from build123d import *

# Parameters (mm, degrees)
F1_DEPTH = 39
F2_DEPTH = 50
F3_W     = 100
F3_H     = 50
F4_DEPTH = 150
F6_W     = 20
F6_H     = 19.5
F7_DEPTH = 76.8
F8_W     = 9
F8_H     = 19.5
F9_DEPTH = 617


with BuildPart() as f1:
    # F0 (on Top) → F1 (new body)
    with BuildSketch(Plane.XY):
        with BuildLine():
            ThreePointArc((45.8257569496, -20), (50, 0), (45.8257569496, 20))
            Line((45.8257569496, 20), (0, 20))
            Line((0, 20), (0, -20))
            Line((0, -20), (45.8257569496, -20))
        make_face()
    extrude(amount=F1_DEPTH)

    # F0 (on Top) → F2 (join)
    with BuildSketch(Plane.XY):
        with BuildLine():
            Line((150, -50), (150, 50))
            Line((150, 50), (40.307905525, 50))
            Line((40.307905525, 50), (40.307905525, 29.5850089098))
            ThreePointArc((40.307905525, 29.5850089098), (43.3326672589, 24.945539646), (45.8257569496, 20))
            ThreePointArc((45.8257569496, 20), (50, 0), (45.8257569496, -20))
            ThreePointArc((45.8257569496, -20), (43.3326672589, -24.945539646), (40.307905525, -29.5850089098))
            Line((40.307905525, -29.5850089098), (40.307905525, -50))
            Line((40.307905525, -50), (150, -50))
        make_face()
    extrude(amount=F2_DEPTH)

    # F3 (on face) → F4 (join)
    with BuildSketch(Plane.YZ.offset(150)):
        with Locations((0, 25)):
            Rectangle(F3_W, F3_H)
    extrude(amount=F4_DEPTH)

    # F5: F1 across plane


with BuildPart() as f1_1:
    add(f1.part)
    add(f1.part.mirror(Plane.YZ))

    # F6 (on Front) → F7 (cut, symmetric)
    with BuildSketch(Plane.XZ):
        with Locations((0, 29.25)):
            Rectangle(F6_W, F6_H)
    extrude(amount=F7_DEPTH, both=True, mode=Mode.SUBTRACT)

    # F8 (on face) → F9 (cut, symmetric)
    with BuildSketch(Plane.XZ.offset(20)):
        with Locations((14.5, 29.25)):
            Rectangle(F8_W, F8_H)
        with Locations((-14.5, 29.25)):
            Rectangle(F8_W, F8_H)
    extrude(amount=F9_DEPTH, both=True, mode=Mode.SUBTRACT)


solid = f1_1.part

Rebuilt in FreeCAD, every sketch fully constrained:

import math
import FreeCAD as App
import Part
import Sketcher

V = App.Vector
Q = App.Units.Quantity

doc = App.newDocument("Part")
body = doc.addObject("PartDesign::Body", "Body")

sketch1 = doc.addObject("Sketcher::SketchObject", "Sketch")
body.addObject(sketch1)
sketch1.AttachmentSupport = (doc.XY_Plane, [""])
sketch1.MapMode = "FlatFace"
sketch1.addGeometry([
    Part.ArcOfCircle(Part.Circle(V(0, 0, 0), V(0, 0, 1), 50), math.radians(-24), math.radians(24)),
    Part.LineSegment(V(46, 20, 0), V(0, 20, 0)),
    Part.LineSegment(V(0, 20, 0), V(0, -20, 0)),
    Part.LineSegment(V(0, -20, 0), V(46, -20, 0)),
], False)
sketch1.addConstraint([
    Sketcher.Constraint("Coincident", 0, 2, 1, 1),
    Sketcher.Constraint("Coincident", 1, 2, 2, 1),
    Sketcher.Constraint("Coincident", 2, 2, 3, 1),
    Sketcher.Constraint("Coincident", 3, 2, 0, 1),
    Sketcher.Constraint("Horizontal", 1),
    Sketcher.Constraint("Vertical", 2),
    Sketcher.Constraint("Horizontal", 3),
    Sketcher.Constraint("Coincident", 0, 3, -1, 1),
    Sketcher.Constraint("Symmetric", 1, 2, 2, 2, -1, 1),
    Sketcher.Constraint("Radius", 0, Q("50 mm")),
    Sketcher.Constraint("DistanceY", 2, 2, 2, 1, Q("40 mm")),
])
pad1 = doc.addObject("PartDesign::Pad", "Pad")
body.addObject(pad1)
pad1.Profile = sketch1
pad1.Length = 39

sketch2 = doc.addObject("Sketcher::SketchObject", "Sketch001")
body.addObject(sketch2)
sketch2.AttachmentSupport = (doc.XY_Plane, [""])
sketch2.MapMode = "FlatFace"
sketch2.addGeometry([
    Part.LineSegment(V(150, -50, 0), V(150, 50, 0)),
    Part.LineSegment(V(150, 50, 0), V(40, 50, 0)),
    Part.LineSegment(V(40, 50, 0), V(40, 30, 0)),
    Part.ArcOfCircle(Part.Circle(V(0, 0, 0), V(0, 0, 1), 50), math.radians(23.58), math.radians(36.28)),
    Part.ArcOfCircle(Part.Circle(V(0, 0, 0), V(0, 0, 1), 50), math.radians(-24), math.radians(24)),
    Part.ArcOfCircle(Part.Circle(V(0, 0, 0), V(0, 0, 1), 50), math.radians(-36.28), math.radians(-23.58)),
    Part.LineSegment(V(40, -30, 0), V(40, -50, 0)),
    Part.LineSegment(V(40, -50, 0), V(150, -50, 0)),
], False)
sketch2.addConstraint([
    Sketcher.Constraint("Coincident", 0, 2, 1, 1),
    Sketcher.Constraint("Coincident", 1, 2, 2, 1),
    Sketcher.Constraint("Coincident", 2, 2, 3, 2),
    Sketcher.Constraint("Tangent", 3, 1, 4, 2),
    Sketcher.Constraint("Tangent", 4, 1, 5, 2),
    Sketcher.Constraint("Coincident", 5, 1, 6, 1),
    Sketcher.Constraint("Coincident", 6, 2, 7, 1),
    Sketcher.Constraint("Coincident", 7, 2, 0, 1),
    Sketcher.Constraint("Vertical", 0),
    Sketcher.Constraint("Horizontal", 1),
    Sketcher.Constraint("Vertical", 2),
    Sketcher.Constraint("Vertical", 6),
    Sketcher.Constraint("Horizontal", 7),
    Sketcher.Constraint("Coincident", 3, 3, -1, 1),
    Sketcher.Constraint("Coincident", 5, 3, -1, 1),
    Sketcher.Constraint("Symmetric", 1, 2, 6, 2, -1),
    Sketcher.Constraint("Vertical", 3, 1, 4, 1),
    Sketcher.Constraint("Radius", 3, Q("50 mm")),
    Sketcher.Constraint("DistanceY", 0, 1, 0, 2, Q("100 mm")),
    Sketcher.Constraint("DistanceX", -1, 1, 0, 2, Q("150 mm")),
    Sketcher.Constraint("DistanceY", -1, 1, 3, 1, Q("20 mm")),
    Sketcher.Constraint("DistanceY", 2, 2, 2, 1, Q("20.414991 mm")),
])
pad2 = doc.addObject("PartDesign::Pad", "Pad001")
body.addObject(pad2)
pad2.Profile = sketch2
pad2.Length = 50

sketch3 = doc.addObject("Sketcher::SketchObject", "Sketch002")
body.addObject(sketch3)
sketch3.AttachmentSupport = (doc.YZ_Plane, [""])
sketch3.MapMode = "FlatFace"
sketch3.AttachmentOffset = App.Placement(V(0, 0, 150), App.Rotation())
sketch3.addGeometry([
    Part.LineSegment(V(-50, 50, 0), V(-50, 0, 0)),
    Part.LineSegment(V(-50, 0, 0), V(50, 0, 0)),
    Part.LineSegment(V(50, 0, 0), V(50, 50, 0)),
    Part.LineSegment(V(50, 50, 0), V(-50, 50, 0)),
], False)
sketch3.addConstraint([
    Sketcher.Constraint("Coincident", 0, 2, 1, 1),
    Sketcher.Constraint("Coincident", 1, 2, 2, 1),
    Sketcher.Constraint("Coincident", 2, 2, 3, 1),
    Sketcher.Constraint("Coincident", 3, 2, 0, 1),
    Sketcher.Constraint("Vertical", 0),
    Sketcher.Constraint("Horizontal", 1),
    Sketcher.Constraint("Vertical", 2),
    Sketcher.Constraint("Horizontal", 3),
    Sketcher.Constraint("Symmetric", 0, 2, 1, 2, -1, 1),
    Sketcher.Constraint("DistanceX", 1, 1, 1, 2, Q("100 mm")),
    Sketcher.Constraint("DistanceY", 0, 2, 0, 1, Q("50 mm")),
])
pad3 = doc.addObject("PartDesign::Pad", "Pad002")
body.addObject(pad3)
pad3.Profile = sketch3
pad3.Length = 150
body2 = doc.addObject("PartDesign::Body", "Body001")
doc.recompute()

body2.BaseFeature = body
doc.recompute()

mirroring = doc.addObject("Part::Mirroring", "Mirroring")
mirroring.Source = body
mirroring.Base = V(0, 0, 0)
mirroring.Normal = V(1, 0, 0)
body3 = doc.addObject("PartDesign::Body", "Body002")
body3.BaseFeature = mirroring
boolean = doc.addObject("PartDesign::Boolean", "Boolean")
body2.addObject(boolean)
boolean.Type = "Fuse"
boolean.addObjects([body3])
doc.recompute()

sketch4 = doc.addObject("Sketcher::SketchObject", "Sketch003")
body2.addObject(sketch4)
sketch4.AttachmentSupport = (doc.getObject("XZ_Plane001"), [""])
sketch4.MapMode = "FlatFace"
sketch4.addGeometry([
    Part.LineSegment(V(-10, 39, 0), V(-10, 20, 0)),
    Part.LineSegment(V(-10, 20, 0), V(10, 20, 0)),
    Part.LineSegment(V(10, 20, 0), V(10, 39, 0)),
    Part.LineSegment(V(10, 39, 0), V(-10, 39, 0)),
], False)
sketch4.addConstraint([
    Sketcher.Constraint("Coincident", 0, 2, 1, 1),
    Sketcher.Constraint("Coincident", 1, 2, 2, 1),
    Sketcher.Constraint("Coincident", 2, 2, 3, 1),
    Sketcher.Constraint("Coincident", 3, 2, 0, 1),
    Sketcher.Constraint("Vertical", 0),
    Sketcher.Constraint("Horizontal", 1),
    Sketcher.Constraint("Vertical", 2),
    Sketcher.Constraint("Horizontal", 3),
    Sketcher.Constraint("DistanceX", 1, 1, 1, 2, Q("20 mm")),
    Sketcher.Constraint("DistanceY", 0, 2, 0, 1, Q("19.5 mm")),
    Sketcher.Constraint("DistanceX", 0, 2, -1, 1, Q("10 mm")),
    Sketcher.Constraint("DistanceY", -1, 1, 2, 2, Q("39 mm")),
])
pocket1 = doc.addObject("PartDesign::Pocket", "Pocket")
body2.addObject(pocket1)
pocket1.Profile = sketch4
pocket1.Length = 153.6
pocket1.Midplane = True

sketch5 = doc.addObject("Sketcher::SketchObject", "Sketch004")
body2.addObject(sketch5)
sketch5.AttachmentSupport = (doc.getObject("XZ_Plane001"), [""])
sketch5.MapMode = "FlatFace"
sketch5.AttachmentOffset = App.Placement(V(0, 0, 20), App.Rotation())
sketch5.addGeometry([
    Part.LineSegment(V(10, 39, 0), V(10, 20, 0)),
    Part.LineSegment(V(10, 20, 0), V(19, 20, 0)),
    Part.LineSegment(V(19, 20, 0), V(19, 39, 0)),
    Part.LineSegment(V(19, 39, 0), V(10, 39, 0)),
    Part.LineSegment(V(-19, 39, 0), V(-19, 20, 0)),
    Part.LineSegment(V(-19, 20, 0), V(-10, 20, 0)),
    Part.LineSegment(V(-10, 20, 0), V(-10, 39, 0)),
    Part.LineSegment(V(-10, 39, 0), V(-19, 39, 0)),
], False)
sketch5.addConstraint([
    Sketcher.Constraint("Coincident", 0, 2, 1, 1),
    Sketcher.Constraint("Coincident", 1, 2, 2, 1),
    Sketcher.Constraint("Coincident", 2, 2, 3, 1),
    Sketcher.Constraint("Coincident", 3, 2, 0, 1),
    Sketcher.Constraint("Coincident", 4, 2, 5, 1),
    Sketcher.Constraint("Coincident", 5, 2, 6, 1),
    Sketcher.Constraint("Coincident", 6, 2, 7, 1),
    Sketcher.Constraint("Coincident", 7, 2, 4, 1),
    Sketcher.Constraint("Vertical", 0),
    Sketcher.Constraint("Horizontal", 1),
    Sketcher.Constraint("Vertical", 2),
    Sketcher.Constraint("Horizontal", 3),
    Sketcher.Constraint("Vertical", 4),
    Sketcher.Constraint("Horizontal", 5),
    Sketcher.Constraint("Vertical", 6),
    Sketcher.Constraint("Horizontal", 7),
    Sketcher.Constraint("Symmetric", 1, 2, 4, 2, -2),
    Sketcher.Constraint("Symmetric", 3, 2, 6, 2, -2),
    Sketcher.Constraint("DistanceX", 1, 1, 1, 2, Q("9 mm")),
    Sketcher.Constraint("DistanceY", 0, 2, 0, 1, Q("19.5 mm")),
    Sketcher.Constraint("DistanceX", -1, 1, 0, 2, Q("10 mm")),
    Sketcher.Constraint("DistanceY", -1, 1, 2, 2, Q("39 mm")),
])
pocket2 = doc.addObject("PartDesign::Pocket", "Pocket001")
body2.addObject(pocket2)
pocket2.Profile = sketch5
pocket2.Length = 1234
pocket2.Midplane = True
mirroring.Visibility = False

doc.recompute()
